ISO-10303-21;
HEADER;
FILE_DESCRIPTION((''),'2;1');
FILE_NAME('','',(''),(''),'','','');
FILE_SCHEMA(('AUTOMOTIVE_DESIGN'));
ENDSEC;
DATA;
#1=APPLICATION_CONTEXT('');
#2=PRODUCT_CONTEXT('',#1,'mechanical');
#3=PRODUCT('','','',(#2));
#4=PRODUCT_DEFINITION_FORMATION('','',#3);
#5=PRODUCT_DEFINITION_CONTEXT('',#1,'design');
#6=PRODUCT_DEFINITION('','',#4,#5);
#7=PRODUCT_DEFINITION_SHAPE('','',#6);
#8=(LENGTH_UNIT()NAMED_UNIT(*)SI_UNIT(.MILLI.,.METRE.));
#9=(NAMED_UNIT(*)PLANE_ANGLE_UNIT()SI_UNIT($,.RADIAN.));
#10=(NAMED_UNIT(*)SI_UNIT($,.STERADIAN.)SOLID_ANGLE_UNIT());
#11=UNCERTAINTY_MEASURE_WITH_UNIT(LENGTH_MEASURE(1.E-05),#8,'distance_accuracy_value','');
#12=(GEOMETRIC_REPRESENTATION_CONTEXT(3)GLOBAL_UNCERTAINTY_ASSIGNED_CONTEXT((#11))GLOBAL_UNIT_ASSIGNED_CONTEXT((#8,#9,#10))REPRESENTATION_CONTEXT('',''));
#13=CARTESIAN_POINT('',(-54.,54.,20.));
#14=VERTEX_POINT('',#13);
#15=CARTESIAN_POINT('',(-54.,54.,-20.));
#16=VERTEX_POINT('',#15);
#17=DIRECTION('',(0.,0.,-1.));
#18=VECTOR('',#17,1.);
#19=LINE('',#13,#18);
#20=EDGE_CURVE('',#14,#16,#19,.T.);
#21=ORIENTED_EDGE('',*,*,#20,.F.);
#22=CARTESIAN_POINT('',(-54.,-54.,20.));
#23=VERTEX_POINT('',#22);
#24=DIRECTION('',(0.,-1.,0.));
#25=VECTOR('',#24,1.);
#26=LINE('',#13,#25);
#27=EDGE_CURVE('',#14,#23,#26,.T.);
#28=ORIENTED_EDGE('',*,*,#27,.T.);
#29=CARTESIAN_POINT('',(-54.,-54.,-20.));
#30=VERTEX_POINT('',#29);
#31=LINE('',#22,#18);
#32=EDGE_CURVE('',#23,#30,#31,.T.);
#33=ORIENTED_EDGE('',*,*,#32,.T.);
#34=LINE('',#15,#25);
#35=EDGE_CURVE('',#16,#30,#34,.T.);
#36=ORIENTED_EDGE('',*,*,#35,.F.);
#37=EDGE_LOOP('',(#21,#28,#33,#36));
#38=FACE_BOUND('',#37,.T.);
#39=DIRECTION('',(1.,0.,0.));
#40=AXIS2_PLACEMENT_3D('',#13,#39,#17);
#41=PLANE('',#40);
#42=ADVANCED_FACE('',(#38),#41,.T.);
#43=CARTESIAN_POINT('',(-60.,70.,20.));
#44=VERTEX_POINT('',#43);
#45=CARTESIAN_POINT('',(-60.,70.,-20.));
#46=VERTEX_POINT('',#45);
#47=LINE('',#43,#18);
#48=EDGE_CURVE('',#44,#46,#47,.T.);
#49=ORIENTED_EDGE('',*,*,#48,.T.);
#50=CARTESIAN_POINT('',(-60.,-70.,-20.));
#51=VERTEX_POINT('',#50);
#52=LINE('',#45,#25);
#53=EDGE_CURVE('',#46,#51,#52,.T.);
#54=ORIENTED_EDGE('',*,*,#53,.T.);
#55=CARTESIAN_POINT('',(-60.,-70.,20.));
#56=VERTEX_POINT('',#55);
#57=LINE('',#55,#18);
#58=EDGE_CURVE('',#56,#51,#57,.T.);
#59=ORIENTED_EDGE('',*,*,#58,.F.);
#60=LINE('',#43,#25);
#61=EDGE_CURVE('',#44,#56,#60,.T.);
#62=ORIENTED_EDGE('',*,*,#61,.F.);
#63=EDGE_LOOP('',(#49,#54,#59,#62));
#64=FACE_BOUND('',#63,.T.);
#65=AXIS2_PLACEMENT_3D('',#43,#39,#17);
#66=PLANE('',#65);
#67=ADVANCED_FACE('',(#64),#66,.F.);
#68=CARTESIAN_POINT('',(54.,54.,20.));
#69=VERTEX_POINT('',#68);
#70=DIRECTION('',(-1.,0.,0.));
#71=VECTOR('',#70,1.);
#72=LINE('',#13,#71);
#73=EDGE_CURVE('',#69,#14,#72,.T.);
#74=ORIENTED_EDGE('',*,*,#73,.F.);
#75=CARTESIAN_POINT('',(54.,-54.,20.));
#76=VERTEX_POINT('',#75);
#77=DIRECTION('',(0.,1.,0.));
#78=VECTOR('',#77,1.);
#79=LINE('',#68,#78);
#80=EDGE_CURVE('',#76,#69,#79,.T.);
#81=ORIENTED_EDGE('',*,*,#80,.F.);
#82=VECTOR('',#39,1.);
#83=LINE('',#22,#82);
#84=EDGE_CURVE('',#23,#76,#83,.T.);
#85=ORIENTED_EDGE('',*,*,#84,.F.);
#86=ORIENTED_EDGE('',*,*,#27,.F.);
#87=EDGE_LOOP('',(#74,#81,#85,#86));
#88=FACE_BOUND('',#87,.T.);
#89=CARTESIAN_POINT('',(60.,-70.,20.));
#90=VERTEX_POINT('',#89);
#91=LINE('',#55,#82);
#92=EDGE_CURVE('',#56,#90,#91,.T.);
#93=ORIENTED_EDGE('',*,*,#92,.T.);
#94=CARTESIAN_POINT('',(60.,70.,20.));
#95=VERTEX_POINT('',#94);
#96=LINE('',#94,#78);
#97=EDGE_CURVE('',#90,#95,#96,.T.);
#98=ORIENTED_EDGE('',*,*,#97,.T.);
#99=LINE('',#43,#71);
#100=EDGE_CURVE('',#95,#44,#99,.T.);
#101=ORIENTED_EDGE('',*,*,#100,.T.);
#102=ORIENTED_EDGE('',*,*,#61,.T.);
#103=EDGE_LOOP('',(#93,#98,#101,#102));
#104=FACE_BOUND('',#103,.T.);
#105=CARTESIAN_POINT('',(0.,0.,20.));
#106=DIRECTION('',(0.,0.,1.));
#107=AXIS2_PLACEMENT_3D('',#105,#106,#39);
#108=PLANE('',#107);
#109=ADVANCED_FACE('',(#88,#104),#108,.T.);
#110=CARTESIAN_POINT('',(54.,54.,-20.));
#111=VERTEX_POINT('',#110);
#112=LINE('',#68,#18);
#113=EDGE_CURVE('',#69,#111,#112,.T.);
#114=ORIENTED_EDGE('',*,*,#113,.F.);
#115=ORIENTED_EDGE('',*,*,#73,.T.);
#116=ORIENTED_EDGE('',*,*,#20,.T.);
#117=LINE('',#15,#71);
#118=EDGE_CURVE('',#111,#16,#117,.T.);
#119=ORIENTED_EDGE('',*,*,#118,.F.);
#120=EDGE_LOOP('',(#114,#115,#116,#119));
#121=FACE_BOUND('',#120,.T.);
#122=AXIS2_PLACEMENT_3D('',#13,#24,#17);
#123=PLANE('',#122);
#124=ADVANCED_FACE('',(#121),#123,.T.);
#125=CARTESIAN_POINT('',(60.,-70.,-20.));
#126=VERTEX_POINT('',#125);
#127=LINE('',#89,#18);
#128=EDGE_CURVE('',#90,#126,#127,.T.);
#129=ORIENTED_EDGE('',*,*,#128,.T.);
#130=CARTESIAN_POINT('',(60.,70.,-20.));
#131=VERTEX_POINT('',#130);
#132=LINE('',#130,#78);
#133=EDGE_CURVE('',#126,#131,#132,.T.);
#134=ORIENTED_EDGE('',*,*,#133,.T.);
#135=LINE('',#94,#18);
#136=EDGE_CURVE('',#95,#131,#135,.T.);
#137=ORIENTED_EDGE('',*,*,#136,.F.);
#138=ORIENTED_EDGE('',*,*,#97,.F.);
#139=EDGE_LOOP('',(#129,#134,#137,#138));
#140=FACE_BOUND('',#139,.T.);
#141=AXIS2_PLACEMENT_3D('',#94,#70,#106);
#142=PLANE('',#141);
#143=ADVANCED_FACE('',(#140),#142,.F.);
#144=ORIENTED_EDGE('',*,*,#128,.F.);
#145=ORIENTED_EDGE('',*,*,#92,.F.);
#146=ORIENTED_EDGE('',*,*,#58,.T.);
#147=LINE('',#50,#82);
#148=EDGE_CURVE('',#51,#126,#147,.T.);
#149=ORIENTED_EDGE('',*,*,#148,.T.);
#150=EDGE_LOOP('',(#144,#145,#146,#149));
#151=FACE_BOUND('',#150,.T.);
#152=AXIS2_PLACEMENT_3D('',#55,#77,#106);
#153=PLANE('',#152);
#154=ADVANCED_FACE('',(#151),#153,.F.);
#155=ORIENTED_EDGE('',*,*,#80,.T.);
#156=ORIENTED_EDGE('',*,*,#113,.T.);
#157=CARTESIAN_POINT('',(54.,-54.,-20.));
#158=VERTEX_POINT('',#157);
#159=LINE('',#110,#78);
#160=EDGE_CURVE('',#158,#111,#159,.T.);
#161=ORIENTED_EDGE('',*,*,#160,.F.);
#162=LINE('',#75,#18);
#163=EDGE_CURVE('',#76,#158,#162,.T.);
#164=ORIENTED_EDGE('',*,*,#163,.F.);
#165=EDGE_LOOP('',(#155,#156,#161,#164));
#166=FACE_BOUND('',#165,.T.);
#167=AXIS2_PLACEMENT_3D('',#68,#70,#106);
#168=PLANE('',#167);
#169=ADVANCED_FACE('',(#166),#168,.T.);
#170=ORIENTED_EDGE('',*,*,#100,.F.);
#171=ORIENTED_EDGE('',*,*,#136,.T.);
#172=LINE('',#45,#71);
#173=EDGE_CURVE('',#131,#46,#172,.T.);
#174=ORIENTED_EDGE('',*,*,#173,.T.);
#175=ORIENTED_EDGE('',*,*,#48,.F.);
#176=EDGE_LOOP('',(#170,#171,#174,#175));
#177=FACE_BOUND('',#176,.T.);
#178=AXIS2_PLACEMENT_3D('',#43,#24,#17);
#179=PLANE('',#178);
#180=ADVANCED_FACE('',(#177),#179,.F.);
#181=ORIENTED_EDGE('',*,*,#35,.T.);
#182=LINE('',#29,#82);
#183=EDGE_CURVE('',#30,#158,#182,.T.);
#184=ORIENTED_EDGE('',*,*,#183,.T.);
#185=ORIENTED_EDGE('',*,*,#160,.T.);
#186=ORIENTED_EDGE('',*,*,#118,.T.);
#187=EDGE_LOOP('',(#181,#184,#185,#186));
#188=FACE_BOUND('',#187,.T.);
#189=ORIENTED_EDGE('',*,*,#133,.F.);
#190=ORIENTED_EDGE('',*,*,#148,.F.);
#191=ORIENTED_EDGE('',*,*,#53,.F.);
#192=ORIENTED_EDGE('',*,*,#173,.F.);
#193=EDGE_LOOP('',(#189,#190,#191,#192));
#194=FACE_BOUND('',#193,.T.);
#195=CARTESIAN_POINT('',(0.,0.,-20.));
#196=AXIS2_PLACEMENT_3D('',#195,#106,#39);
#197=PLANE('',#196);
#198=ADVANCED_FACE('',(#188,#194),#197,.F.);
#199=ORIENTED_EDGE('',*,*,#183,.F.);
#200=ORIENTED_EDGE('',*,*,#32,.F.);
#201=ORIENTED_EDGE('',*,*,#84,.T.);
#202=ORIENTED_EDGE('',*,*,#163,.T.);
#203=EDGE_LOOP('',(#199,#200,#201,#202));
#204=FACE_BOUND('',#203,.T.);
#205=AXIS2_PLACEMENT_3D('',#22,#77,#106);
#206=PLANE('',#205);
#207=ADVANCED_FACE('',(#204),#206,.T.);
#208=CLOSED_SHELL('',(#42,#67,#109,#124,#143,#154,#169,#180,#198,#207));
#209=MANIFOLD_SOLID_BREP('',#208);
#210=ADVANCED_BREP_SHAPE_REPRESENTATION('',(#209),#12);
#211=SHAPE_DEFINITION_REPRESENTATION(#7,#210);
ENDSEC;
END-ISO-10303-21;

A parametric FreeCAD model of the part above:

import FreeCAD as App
import Part
import Sketcher
Q = App.Units.Quantity


def add_polygon(sketch, points):
    """Adds a closed chain of lines whose ends are joined by coincident constraints."""
    first, n = sketch.GeometryCount, len(points)
    for a, b in zip(points, points[1:] + points[:1]):
        sketch.addGeometry(Part.LineSegment(App.Vector(*a, 0), App.Vector(*b, 0)), False)
    for i in range(n):
        sketch.addConstraint(Sketcher.Constraint("Coincident", first + i, 2, first + (i + 1) % n, 1))

doc = App.newDocument("Part")
body = doc.addObject("PartDesign::Body", "Body")

# Sketch on XY plane
sketch1 = body.newObject("Sketcher::SketchObject", "Sketch")
sketch1.AttachmentSupport = (doc.getObject("XY_Plane"), [""])
sketch1.MapMode = "FlatFace"
add_polygon(sketch1, [(-60, 70), (-60, -70), (60, -70), (60, 70)])  # lines 0-3
add_polygon(sketch1, [(54, -54), (-54, -54), (-54, 54), (54, 54)])  # lines 4-7
sketch1.addConstraint(Sketcher.Constraint("Vertical", 0))
sketch1.addConstraint(Sketcher.Constraint("Horizontal", 1))
sketch1.addConstraint(Sketcher.Constraint("Vertical", 2))
sketch1.addConstraint(Sketcher.Constraint("Horizontal", 3))
sketch1.addConstraint(Sketcher.Constraint("Horizontal", 4))
sketch1.addConstraint(Sketcher.Constraint("Vertical", 5))
sketch1.addConstraint(Sketcher.Constraint("Horizontal", 6))
sketch1.addConstraint(Sketcher.Constraint("Vertical", 7))
sketch1.addConstraint(Sketcher.Constraint("Symmetric", 0, 2, 2, 2, -1, 1))
sketch1.addConstraint(Sketcher.Constraint("Symmetric", 4, 2, 6, 2, -1, 1))
sketch1.addConstraint(Sketcher.Constraint("Equal", 6, 5))
sketch1.addConstraint(Sketcher.Constraint("DistanceX", 1, 1, 1, 2, Q("120 mm")))
sketch1.addConstraint(Sketcher.Constraint("DistanceX", 4, 2, 4, 1, Q("108 mm")))
sketch1.addConstraint(Sketcher.Constraint("DistanceY", 0, 2, 0, 1, Q("140 mm")))
pad1 = body.newObject("PartDesign::Pad", "Pad")
pad1.Profile = sketch1
pad1.Length = 40
pad1.Midplane = True

doc.recompute()
